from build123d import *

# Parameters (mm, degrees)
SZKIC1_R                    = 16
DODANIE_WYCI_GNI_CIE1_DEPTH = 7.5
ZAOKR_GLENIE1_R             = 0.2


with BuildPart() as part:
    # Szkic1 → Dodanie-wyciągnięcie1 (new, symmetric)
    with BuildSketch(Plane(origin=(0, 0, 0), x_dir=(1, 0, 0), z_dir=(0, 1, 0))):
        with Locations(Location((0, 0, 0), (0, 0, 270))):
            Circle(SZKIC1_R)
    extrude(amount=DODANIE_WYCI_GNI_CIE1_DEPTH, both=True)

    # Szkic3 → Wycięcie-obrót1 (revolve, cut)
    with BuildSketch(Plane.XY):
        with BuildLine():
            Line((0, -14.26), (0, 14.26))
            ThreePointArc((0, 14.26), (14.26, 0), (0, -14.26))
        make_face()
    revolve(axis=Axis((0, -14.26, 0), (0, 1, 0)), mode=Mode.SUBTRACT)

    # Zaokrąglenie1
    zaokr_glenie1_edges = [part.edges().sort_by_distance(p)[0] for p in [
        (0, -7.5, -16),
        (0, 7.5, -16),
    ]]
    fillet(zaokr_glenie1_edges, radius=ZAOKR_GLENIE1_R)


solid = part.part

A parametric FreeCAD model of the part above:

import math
import FreeCAD as App
import Part
import Sketcher

V = App.Vector


def edges_at(feature, points):
    """Names of the edges that pass closest to the given points."""
    edges = feature.Shape.Edges
    near = lambda p: min(range(len(edges)), key=lambda i: edges[i].distToShape(Part.Vertex(*p))[0])
    return sorted({f"Edge{near(p) + 1}" for p in points})

doc = App.newDocument("Part")
body = doc.addObject("PartDesign::Body", "Body")

# Sketch on XZ plane
sketch1 = body.newObject("Sketcher::SketchObject", "Sketch")
sketch1.AttachmentSupport = (doc.getObject("XZ_Plane"), [""])
sketch1.MapMode = "FlatFace"
sketch1.addGeometry(Part.Circle(V(0, 0, 0), V(0, 0, 1), 16), False)
sketch1.addConstraint([
    Sketcher.Constraint("Coincident", 0, 3, -1, 1),
    Sketcher.Constraint("Diameter", 0, 32.0),
])
pad1 = body.newObject("PartDesign::Pad", "Pad")
pad1.Profile = sketch1
pad1.Length = 15
pad1.Midplane = True

# Sketch on XY plane
sketch2 = body.newObject("Sketcher::SketchObject", "Sketch001")
sketch2.AttachmentSupport = (doc.getObject("XY_Plane"), [""])
sketch2.MapMode = "FlatFace"
sketch2.addGeometry([
    Part.LineSegment(V(0, 14.26, 0), V(0, -14.26, 0)),
    Part.ArcOfCircle(Part.Circle(V(0, 0, 0), V(0, 0, 1), 14.26), math.radians(-90), math.radians(90)),
], False)
sketch2.addConstraint([
    Sketcher.Constraint("Coincident", 0, 1, 1, 2),
    Sketcher.Constraint("Coincident", 1, 1, 0, 2),
    Sketcher.Constraint("Vertical", 0),
    Sketcher.Constraint("Coincident", 1, 3, -1, 1),
    Sketcher.Constraint("PointOnObject", 0, 1, -2),
    Sketcher.Constraint("Radius", 1, 14.26),
])
groove = body.newObject("PartDesign::Groove", "Groove")
groove.Profile = sketch2
groove.ReferenceAxis = (sketch2, ["V_Axis"])
groove.Angle = 360
doc.recompute()

fillet = body.newObject("PartDesign::Fillet", "Fillet")
fillet.Base = (groove, edges_at(groove, [(0, -7.5, -16), (0, 7.5, -16)]))
fillet.Radius = 0.2

doc.recompute()
